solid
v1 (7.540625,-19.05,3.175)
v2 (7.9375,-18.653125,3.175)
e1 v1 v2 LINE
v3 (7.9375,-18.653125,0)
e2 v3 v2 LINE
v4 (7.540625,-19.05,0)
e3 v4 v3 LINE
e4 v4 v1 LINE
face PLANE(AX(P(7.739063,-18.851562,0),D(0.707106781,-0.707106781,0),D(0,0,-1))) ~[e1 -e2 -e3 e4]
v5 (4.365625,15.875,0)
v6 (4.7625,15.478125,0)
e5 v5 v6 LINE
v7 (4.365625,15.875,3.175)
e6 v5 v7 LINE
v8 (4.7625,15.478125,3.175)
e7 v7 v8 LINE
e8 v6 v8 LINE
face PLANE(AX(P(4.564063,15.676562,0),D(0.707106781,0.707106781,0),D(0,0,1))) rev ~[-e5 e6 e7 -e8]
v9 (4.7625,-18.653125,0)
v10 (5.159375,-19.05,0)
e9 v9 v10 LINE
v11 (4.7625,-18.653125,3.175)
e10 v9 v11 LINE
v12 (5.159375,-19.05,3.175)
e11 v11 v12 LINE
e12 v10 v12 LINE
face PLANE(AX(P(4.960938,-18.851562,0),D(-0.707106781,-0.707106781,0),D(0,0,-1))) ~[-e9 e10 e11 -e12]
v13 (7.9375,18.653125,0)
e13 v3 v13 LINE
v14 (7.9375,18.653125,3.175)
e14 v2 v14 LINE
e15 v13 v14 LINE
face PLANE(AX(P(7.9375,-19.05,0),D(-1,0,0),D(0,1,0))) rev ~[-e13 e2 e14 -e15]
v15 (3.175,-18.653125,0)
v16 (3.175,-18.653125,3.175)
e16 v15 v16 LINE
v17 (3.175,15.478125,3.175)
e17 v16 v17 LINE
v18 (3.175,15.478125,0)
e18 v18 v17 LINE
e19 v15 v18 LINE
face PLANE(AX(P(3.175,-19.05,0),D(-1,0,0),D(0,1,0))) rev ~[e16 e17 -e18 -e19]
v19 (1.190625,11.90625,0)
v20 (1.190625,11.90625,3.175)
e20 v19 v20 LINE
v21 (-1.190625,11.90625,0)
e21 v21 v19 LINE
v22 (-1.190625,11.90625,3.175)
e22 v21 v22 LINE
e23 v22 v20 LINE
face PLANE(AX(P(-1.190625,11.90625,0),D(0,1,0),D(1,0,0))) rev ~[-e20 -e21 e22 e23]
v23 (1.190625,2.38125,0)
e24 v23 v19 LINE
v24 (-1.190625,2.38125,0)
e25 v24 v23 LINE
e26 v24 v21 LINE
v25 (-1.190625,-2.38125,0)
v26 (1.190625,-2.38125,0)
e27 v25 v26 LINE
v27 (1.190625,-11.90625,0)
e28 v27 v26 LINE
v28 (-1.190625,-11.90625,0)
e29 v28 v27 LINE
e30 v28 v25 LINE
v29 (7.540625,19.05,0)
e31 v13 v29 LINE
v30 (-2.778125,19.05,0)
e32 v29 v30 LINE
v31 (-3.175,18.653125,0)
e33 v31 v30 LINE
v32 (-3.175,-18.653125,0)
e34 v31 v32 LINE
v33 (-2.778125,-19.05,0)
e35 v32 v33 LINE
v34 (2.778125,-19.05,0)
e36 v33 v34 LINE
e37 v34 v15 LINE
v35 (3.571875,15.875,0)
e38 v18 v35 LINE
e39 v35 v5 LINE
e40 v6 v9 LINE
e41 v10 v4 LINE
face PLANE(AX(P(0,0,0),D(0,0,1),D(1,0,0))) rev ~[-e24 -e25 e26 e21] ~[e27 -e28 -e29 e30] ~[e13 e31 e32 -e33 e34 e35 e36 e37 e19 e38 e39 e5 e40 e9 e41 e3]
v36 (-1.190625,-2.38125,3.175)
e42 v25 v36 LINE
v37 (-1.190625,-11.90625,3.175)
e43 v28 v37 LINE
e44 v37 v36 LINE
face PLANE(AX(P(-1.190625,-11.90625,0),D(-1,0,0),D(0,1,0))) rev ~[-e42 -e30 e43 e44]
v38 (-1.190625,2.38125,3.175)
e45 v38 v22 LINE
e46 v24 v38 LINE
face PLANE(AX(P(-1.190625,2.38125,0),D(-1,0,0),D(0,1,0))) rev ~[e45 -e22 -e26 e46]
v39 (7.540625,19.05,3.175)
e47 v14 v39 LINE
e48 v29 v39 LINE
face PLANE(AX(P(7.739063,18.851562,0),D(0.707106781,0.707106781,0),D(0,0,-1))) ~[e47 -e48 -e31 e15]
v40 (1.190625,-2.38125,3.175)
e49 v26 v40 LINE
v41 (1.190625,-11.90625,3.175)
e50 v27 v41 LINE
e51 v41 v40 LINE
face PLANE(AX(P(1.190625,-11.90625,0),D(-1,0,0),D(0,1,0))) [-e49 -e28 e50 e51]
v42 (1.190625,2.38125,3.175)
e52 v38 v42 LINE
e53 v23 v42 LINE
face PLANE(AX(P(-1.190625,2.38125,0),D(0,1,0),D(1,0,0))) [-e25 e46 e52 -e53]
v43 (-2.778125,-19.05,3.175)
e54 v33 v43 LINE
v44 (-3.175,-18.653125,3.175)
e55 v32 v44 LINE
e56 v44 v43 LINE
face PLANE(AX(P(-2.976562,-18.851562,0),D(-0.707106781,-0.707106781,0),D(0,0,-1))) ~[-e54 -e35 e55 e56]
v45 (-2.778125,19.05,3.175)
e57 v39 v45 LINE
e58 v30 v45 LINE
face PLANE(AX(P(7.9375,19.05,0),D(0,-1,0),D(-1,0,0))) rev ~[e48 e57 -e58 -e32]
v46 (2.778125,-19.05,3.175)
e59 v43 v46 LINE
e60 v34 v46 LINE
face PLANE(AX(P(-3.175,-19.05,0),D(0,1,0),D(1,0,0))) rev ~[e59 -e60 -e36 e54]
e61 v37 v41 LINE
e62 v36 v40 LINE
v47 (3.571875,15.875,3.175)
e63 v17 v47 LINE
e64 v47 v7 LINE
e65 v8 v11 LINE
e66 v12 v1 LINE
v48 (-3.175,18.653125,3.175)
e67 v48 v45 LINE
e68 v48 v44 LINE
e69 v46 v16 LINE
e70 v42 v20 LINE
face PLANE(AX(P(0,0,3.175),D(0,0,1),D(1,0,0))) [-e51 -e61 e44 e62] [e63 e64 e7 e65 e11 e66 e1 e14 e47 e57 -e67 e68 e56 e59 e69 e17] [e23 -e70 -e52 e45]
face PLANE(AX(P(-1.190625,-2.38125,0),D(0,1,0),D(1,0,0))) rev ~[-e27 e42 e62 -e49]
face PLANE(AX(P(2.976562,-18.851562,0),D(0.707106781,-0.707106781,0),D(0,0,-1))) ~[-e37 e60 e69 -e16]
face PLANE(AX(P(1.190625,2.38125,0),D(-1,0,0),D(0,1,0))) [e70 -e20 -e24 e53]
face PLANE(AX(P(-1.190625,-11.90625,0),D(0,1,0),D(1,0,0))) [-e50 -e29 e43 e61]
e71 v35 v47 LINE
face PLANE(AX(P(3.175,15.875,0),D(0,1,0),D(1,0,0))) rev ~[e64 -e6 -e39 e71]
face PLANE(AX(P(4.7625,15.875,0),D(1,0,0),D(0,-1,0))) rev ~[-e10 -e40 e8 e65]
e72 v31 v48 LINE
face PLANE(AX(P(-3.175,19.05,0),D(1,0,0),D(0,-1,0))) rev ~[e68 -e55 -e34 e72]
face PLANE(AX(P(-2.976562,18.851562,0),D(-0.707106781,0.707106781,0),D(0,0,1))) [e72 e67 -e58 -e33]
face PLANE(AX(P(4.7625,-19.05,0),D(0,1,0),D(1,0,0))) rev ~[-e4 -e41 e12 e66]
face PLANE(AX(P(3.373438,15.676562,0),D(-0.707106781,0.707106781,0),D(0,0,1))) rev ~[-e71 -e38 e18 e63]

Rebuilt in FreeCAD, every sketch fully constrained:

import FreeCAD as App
import Part
import Sketcher
Q = App.Units.Quantity


def edges_at(feature, points):
    """Names of the edges that pass closest to the given points."""
    edges = feature.Shape.Edges
    near = lambda p: min(range(len(edges)), key=lambda i: edges[i].distToShape(Part.Vertex(*p))[0])
    return sorted({f"Edge{near(p) + 1}" for p in points})


def add_polygon(sketch, points):
    """Adds a closed chain of lines whose ends are joined by coincident constraints."""
    first, n = sketch.GeometryCount, len(points)
    for a, b in zip(points, points[1:] + points[:1]):
        sketch.addGeometry(Part.LineSegment(App.Vector(*a, 0), App.Vector(*b, 0)), False)
    for i in range(n):
        sketch.addConstraint(Sketcher.Constraint("Coincident", first + i, 2, first + (i + 1) % n, 1))

doc = App.newDocument("Part")
body = doc.addObject("PartDesign::Body", "Body")

sketch1 = body.newObject("Sketcher::SketchObject", "Sketch")
sketch1.AttachmentSupport = (doc.getObject("XY_Plane"), [""])
sketch1.MapMode = "FlatFace"
add_polygon(sketch1, [(-3.2, 19.1), (-3.2, -19.1), (3.2, -19.1), (3.2, 15.9), (4.8, 15.9), (4.8, -19.1), (7.9, -19.1), (7.9, 19.1)])
add_polygon(sketch1, [(1.2, -11.9), (-1.2, -11.9), (-1.2, -2.4), (1.2, -2.4)])
add_polygon(sketch1, [(1.2, 2.4), (-1.2, 2.4), (-1.2, 11.9), (1.2, 11.9)])
sketch1.addConstraint([
    Sketcher.Constraint("Vertical", 0),
    Sketcher.Constraint("Horizontal", 1),
    Sketcher.Constraint("Vertical", 2),
    Sketcher.Constraint("Horizontal", 3),
    Sketcher.Constraint("Vertical", 4),
    Sketcher.Constraint("Horizontal", 5),
    Sketcher.Constraint("Vertical", 6),
    Sketcher.Constraint("Horizontal", 7),
    Sketcher.Constraint("Horizontal", 8),
    Sketcher.Constraint("Vertical", 9),
    Sketcher.Constraint("Horizontal", 10),
    Sketcher.Constraint("Vertical", 11),
    Sketcher.Constraint("Horizontal", 12),
    Sketcher.Constraint("Vertical", 13),
    Sketcher.Constraint("Horizontal", 14),
    Sketcher.Constraint("Vertical", 15),
    Sketcher.Constraint("Symmetric", 1, 2, 7, 2, -1, 1),
    Sketcher.Constraint("Symmetric", 10, 2, 12, 2, -1, 1),
    Sketcher.Constraint("Symmetric", 8, 2, 14, 2, -1, 1),
    Sketcher.Constraint("Horizontal", 1, 2, 4, 2),
    Sketcher.Constraint("Vertical", 9, 2, 12, 2),
    Sketcher.Constraint("DistanceY", 0, 2, 0, 1, Q("1.5 in")),
    Sketcher.Constraint("DistanceX", 1, 1, 1, 2, Q("0.25 in")),
    Sketcher.Constraint("DistanceX", 3, 1, 3, 2, Q("0.0625 in")),
    Sketcher.Constraint("DistanceX", 5, 1, 5, 2, Q("0.125 in")),
    Sketcher.Constraint("DistanceX", 8, 2, 8, 1, Q("0.09375 in")),
    Sketcher.Constraint("DistanceY", 2, 1, 2, 2, Q("1.375 in")),
    Sketcher.Constraint("DistanceY", 9, 1, 9, 2, Q("0.375 in")),
    Sketcher.Constraint("DistanceY", 8, 2, -1, 1, Q("0.46875 in")),
])
pad1 = body.newObject("PartDesign::Pad", "Pad")
pad1.Profile = sketch1
pad1.Length = Q("0.125 in")
doc.recompute()

chamfer = body.newObject("PartDesign::Chamfer", "Chamfer")
chamfer.Base = (pad1, edges_at(pad1, [
    (4.763, 15.875, 1.587),
    (3.175, 15.875, 1.587),
    (7.938, 19.05, 1.587),
    (-3.175, 19.05, 1.587),
    (7.938, -19.05, 1.587),
    (4.763, -19.05, 1.587),
    (3.175, -19.05, 1.587),
    (-3.175, -19.05, 1.587),
]))
chamfer.Size = Q("0.015625 in")

doc.recompute()
